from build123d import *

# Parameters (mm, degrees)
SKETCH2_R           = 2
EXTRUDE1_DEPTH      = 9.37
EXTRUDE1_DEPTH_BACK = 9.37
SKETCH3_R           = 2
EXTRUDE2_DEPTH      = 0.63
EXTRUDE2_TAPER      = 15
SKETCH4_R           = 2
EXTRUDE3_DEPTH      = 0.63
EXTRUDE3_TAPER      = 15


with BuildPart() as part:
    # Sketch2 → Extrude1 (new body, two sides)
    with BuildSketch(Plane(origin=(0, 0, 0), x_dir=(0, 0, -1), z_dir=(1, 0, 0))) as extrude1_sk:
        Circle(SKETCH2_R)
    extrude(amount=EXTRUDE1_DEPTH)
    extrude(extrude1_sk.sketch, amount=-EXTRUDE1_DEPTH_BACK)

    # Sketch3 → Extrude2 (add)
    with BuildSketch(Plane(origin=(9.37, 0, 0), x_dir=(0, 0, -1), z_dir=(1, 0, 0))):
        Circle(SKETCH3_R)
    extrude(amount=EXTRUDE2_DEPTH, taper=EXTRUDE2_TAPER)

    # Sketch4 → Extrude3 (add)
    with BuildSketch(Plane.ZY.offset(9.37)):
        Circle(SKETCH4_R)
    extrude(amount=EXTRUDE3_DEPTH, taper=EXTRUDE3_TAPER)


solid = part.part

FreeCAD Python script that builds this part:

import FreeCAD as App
import Part
import Sketcher

V = App.Vector
Q = App.Units.Quantity

doc = App.newDocument("Part")
params = doc.addObject("Spreadsheet::Sheet", "Params")
for row, (alias, value) in enumerate([
    ("sketch1_diameter", "4 mm"),
    ("pad1_length", "9.37 mm"),
    ("pad1_length2", "9.37 mm"),
    ("sketch2_diameter", "4 mm"),
    ("pad2_length", "0.63 mm"),
    ("pad2_taper", "-15 deg"),
    ("sketch3_diameter", "4 mm"),
    ("pad3_length", "0.63 mm"),
    ("pad3_taper", "-15 deg"),
], start=1):
    params.set(f"A{row}", alias)
    params.set(f"B{row}", "=" + value)
    params.setAlias(f"B{row}", alias)

body = doc.addObject("PartDesign::Body", "Body")

# Sketch on YZ plane
sketch1 = body.newObject("Sketcher::SketchObject", "Sketch")
sketch1.AttachmentSupport = (doc.getObject("YZ_Plane"), [""])
sketch1.MapMode = "FlatFace"
sketch1.addGeometry(Part.Circle(V(0, 0, 0), V(0, 0, 1), 2), False)
sketch1.addConstraint([
    Sketcher.Constraint("Coincident", 0, 3, -1, 1),
    Sketcher.Constraint("Diameter", 0, Q("4 mm")),
])
sketch1.setExpression("Constraints[1]", "Params.sketch1_diameter")
pad1 = body.newObject("PartDesign::Pad", "Pad")
pad1.Profile = sketch1
pad1.Type = "TwoLengths"
pad1.setExpression("Length", "Params.pad1_length")
pad1.setExpression("Length2", "Params.pad1_length2")

# Sketch on YZ plane
sketch2 = body.newObject("Sketcher::SketchObject", "Sketch001")
sketch2.AttachmentSupport = (doc.getObject("YZ_Plane"), [""])
sketch2.MapMode = "FlatFace"
sketch2.AttachmentOffset = App.Placement(V(0, 0, 9.37), App.Rotation())
sketch2.addGeometry(Part.Circle(V(0, 0, 0), V(0, 0, 1), 2), False)
sketch2.addConstraint([
    Sketcher.Constraint("Coincident", 0, 3, -1, 1),
    Sketcher.Constraint("Diameter", 0, Q("4 mm")),
])
sketch2.setExpression("Constraints[1]", "Params.sketch2_diameter")
pad2 = body.newObject("PartDesign::Pad", "Pad001")
pad2.Profile = sketch2
pad2.setExpression("Length", "Params.pad2_length")
pad2.setExpression("TaperAngle", "Params.pad2_taper")

# Sketch on YZ plane
sketch3 = body.newObject("Sketcher::SketchObject", "Sketch002")
sketch3.AttachmentSupport = (doc.getObject("YZ_Plane"), [""])
sketch3.MapMode = "FlatFace"
sketch3.AttachmentOffset = App.Placement(V(0, 0, -9.37), App.Rotation())
sketch3.addGeometry(Part.Circle(V(0, 0, 0), V(0, 0, 1), 2), False)
sketch3.addConstraint([
    Sketcher.Constraint("Coincident", 0, 3, -1, 1),
    Sketcher.Constraint("Diameter", 0, Q("4 mm")),
])
sketch3.setExpression("Constraints[1]", "Params.sketch3_diameter")
pad3 = body.newObject("PartDesign::Pad", "Pad002")
pad3.Profile = sketch3
pad3.setExpression("Length", "Params.pad3_length")
pad3.Reversed = True
pad3.setExpression("TaperAngle", "Params.pad3_taper")

doc.recompute()
